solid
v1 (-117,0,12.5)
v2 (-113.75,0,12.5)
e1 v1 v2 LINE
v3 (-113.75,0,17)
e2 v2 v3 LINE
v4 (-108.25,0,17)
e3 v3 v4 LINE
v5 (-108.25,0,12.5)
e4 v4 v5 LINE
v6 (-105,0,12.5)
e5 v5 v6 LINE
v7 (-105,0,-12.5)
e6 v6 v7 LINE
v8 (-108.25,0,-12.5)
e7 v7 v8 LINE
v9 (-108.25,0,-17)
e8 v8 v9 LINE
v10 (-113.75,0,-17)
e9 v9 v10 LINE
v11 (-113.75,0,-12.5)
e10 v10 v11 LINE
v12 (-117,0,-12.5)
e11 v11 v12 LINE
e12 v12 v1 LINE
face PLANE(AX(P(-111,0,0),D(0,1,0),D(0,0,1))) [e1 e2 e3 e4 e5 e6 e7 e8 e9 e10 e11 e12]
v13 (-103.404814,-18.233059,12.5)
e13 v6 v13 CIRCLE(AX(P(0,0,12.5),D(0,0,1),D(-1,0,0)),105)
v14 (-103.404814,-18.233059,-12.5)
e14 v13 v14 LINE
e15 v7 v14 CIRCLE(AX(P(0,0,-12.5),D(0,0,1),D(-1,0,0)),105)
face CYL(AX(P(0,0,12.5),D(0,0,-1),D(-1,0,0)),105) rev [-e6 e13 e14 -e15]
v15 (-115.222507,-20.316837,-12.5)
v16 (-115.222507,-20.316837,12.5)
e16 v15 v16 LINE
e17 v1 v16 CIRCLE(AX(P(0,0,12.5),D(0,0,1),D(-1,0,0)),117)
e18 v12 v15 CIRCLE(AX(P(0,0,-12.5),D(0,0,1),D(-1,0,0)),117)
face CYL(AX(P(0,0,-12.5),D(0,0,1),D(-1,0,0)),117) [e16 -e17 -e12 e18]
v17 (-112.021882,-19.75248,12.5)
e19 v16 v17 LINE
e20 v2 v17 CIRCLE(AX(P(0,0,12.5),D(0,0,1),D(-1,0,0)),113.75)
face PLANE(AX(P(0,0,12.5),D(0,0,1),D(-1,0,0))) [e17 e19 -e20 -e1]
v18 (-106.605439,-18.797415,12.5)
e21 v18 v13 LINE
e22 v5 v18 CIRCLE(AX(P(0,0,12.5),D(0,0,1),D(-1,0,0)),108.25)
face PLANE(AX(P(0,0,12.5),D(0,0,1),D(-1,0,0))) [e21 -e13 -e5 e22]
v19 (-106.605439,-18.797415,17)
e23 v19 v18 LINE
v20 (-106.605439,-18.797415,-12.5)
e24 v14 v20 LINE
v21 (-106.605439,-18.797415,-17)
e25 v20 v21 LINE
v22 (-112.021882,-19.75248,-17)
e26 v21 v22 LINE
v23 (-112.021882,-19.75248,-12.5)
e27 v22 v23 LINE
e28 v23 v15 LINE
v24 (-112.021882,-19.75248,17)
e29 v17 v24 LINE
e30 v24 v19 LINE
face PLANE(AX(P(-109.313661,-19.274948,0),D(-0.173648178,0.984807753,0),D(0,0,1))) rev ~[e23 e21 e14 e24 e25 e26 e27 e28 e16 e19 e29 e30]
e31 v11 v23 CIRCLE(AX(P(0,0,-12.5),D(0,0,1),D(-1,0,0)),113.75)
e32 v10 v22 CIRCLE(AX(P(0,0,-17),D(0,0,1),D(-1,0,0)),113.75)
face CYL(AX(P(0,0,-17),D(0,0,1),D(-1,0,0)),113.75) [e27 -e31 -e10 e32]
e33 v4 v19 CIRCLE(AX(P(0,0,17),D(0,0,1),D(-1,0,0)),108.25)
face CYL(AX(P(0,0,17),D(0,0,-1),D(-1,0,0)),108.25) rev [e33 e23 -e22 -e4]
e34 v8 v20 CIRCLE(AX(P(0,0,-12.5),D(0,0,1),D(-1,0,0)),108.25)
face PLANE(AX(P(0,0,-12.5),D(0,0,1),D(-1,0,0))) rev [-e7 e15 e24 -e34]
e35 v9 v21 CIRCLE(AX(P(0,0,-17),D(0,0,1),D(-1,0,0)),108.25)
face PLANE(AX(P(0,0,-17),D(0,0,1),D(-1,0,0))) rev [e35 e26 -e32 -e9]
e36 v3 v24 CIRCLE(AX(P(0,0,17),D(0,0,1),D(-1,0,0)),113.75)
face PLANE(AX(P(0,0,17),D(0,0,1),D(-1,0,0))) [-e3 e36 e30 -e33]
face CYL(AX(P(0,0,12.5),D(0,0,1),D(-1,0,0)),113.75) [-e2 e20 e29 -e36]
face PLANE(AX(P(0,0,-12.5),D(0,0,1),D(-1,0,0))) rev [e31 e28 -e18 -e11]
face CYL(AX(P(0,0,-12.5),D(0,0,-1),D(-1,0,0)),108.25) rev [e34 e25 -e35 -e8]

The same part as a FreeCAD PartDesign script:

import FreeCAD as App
import Part
import Sketcher

V = App.Vector

doc = App.newDocument("Part")
body = doc.addObject("PartDesign::Body", "Body")

# Sketch on XZ plane
sketch1 = body.newObject("Sketcher::SketchObject", "Sketch")
sketch1.AttachmentSupport = (doc.getObject("XZ_Plane"), [""])
sketch1.MapMode = "FlatFace"
sketch1.addGeometry(Part.LineSegment(V(-113.8, 12.5, 0), V(-117, 12.5, 0)), False)
sketch1.addGeometry(Part.LineSegment(V(-117, 12.5, 0), V(-117, -12.5, 0)), False)
sketch1.addGeometry(Part.LineSegment(V(-117, -12.5, 0), V(-113.8, -12.5, 0)), False)
sketch1.addGeometry(Part.LineSegment(V(-113.8, -12.5, 0), V(-113.8, -17, 0)), False)
sketch1.addGeometry(Part.LineSegment(V(-113.8, -17, 0), V(-108.2, -17, 0)), False)
sketch1.addGeometry(Part.LineSegment(V(-108.2, -17, 0), V(-108.2, -12.5, 0)), False)
sketch1.addGeometry(Part.LineSegment(V(-108.2, -12.5, 0), V(-105, -12.5, 0)), False)
sketch1.addGeometry(Part.LineSegment(V(-105, -12.5, 0), V(-105, 12.5, 0)), False)
sketch1.addGeometry(Part.LineSegment(V(-105, 12.5, 0), V(-108.2, 12.5, 0)), False)
sketch1.addGeometry(Part.LineSegment(V(-108.2, 12.5, 0), V(-108.2, 17, 0)), False)
sketch1.addGeometry(Part.LineSegment(V(-108.2, 17, 0), V(-113.8, 17, 0)), False)
sketch1.addGeometry(Part.LineSegment(V(-113.8, 17, 0), V(-113.8, 12.5, 0)), False)
sketch1.addConstraint(Sketcher.Constraint("Coincident", 0, 2, 1, 1))
sketch1.addConstraint(Sketcher.Constraint("Coincident", 1, 2, 2, 1))
sketch1.addConstraint(Sketcher.Constraint("Coincident", 2, 2, 3, 1))
sketch1.addConstraint(Sketcher.Constraint("Coincident", 3, 2, 4, 1))
sketch1.addConstraint(Sketcher.Constraint("Coincident", 4, 2, 5, 1))
sketch1.addConstraint(Sketcher.Constraint("Coincident", 5, 2, 6, 1))
sketch1.addConstraint(Sketcher.Constraint("Coincident", 6, 2, 7, 1))
sketch1.addConstraint(Sketcher.Constraint("Coincident", 7, 2, 8, 1))
sketch1.addConstraint(Sketcher.Constraint("Coincident", 8, 2, 9, 1))
sketch1.addConstraint(Sketcher.Constraint("Coincident", 9, 2, 10, 1))
sketch1.addConstraint(Sketcher.Constraint("Coincident", 10, 2, 11, 1))
sketch1.addConstraint(Sketcher.Constraint("Coincident", 11, 2, 0, 1))
sketch1.addConstraint(Sketcher.Constraint("Horizontal", 0))
sketch1.addConstraint(Sketcher.Constraint("Vertical", 1))
sketch1.addConstraint(Sketcher.Constraint("Horizontal", 2))
sketch1.addConstraint(Sketcher.Constraint("Vertical", 3))
sketch1.addConstraint(Sketcher.Constraint("Horizontal", 4))
sketch1.addConstraint(Sketcher.Constraint("Vertical", 5))
sketch1.addConstraint(Sketcher.Constraint("Horizontal", 6))
sketch1.addConstraint(Sketcher.Constraint("Vertical", 7))
sketch1.addConstraint(Sketcher.Constraint("Horizontal", 8))
sketch1.addConstraint(Sketcher.Constraint("Vertical", 9))
sketch1.addConstraint(Sketcher.Constraint("Horizontal", 10))
sketch1.addConstraint(Sketcher.Constraint("Vertical", 11))
sketch1.addConstraint(Sketcher.Constraint("Symmetric", 5, 2, 8, 2, -1))
sketch1.addConstraint(Sketcher.Constraint("Symmetric", 3, 2, 10, 2, -1))
sketch1.addConstraint(Sketcher.Constraint("Horizontal", 2, 2, 5, 2))
sketch1.addConstraint(Sketcher.Constraint("Horizontal", 0, 2, 7, 2))
sketch1.addConstraint(Sketcher.Constraint("Equal", 2, 6))
sketch1.addConstraint(Sketcher.Constraint("DistanceX", 0, 2, -1, 1, 117.0))
sketch1.addConstraint(Sketcher.Constraint("DistanceX", 6, 2, -1, 1, 105.0))
sketch1.addConstraint(Sketcher.Constraint("DistanceY", 1, 2, 1, 1, 25.0))
sketch1.addConstraint(Sketcher.Constraint("DistanceX", 2, 2, -1, 1, 113.75))
sketch1.addConstraint(Sketcher.Constraint("DistanceY", 3, 2, 3, 1, 4.5))
revolution = body.newObject("PartDesign::Revolution", "Revolution")
revolution.Profile = sketch1
revolution.ReferenceAxis = (sketch1, ["V_Axis"])
revolution.Angle = 10

doc.recompute()
